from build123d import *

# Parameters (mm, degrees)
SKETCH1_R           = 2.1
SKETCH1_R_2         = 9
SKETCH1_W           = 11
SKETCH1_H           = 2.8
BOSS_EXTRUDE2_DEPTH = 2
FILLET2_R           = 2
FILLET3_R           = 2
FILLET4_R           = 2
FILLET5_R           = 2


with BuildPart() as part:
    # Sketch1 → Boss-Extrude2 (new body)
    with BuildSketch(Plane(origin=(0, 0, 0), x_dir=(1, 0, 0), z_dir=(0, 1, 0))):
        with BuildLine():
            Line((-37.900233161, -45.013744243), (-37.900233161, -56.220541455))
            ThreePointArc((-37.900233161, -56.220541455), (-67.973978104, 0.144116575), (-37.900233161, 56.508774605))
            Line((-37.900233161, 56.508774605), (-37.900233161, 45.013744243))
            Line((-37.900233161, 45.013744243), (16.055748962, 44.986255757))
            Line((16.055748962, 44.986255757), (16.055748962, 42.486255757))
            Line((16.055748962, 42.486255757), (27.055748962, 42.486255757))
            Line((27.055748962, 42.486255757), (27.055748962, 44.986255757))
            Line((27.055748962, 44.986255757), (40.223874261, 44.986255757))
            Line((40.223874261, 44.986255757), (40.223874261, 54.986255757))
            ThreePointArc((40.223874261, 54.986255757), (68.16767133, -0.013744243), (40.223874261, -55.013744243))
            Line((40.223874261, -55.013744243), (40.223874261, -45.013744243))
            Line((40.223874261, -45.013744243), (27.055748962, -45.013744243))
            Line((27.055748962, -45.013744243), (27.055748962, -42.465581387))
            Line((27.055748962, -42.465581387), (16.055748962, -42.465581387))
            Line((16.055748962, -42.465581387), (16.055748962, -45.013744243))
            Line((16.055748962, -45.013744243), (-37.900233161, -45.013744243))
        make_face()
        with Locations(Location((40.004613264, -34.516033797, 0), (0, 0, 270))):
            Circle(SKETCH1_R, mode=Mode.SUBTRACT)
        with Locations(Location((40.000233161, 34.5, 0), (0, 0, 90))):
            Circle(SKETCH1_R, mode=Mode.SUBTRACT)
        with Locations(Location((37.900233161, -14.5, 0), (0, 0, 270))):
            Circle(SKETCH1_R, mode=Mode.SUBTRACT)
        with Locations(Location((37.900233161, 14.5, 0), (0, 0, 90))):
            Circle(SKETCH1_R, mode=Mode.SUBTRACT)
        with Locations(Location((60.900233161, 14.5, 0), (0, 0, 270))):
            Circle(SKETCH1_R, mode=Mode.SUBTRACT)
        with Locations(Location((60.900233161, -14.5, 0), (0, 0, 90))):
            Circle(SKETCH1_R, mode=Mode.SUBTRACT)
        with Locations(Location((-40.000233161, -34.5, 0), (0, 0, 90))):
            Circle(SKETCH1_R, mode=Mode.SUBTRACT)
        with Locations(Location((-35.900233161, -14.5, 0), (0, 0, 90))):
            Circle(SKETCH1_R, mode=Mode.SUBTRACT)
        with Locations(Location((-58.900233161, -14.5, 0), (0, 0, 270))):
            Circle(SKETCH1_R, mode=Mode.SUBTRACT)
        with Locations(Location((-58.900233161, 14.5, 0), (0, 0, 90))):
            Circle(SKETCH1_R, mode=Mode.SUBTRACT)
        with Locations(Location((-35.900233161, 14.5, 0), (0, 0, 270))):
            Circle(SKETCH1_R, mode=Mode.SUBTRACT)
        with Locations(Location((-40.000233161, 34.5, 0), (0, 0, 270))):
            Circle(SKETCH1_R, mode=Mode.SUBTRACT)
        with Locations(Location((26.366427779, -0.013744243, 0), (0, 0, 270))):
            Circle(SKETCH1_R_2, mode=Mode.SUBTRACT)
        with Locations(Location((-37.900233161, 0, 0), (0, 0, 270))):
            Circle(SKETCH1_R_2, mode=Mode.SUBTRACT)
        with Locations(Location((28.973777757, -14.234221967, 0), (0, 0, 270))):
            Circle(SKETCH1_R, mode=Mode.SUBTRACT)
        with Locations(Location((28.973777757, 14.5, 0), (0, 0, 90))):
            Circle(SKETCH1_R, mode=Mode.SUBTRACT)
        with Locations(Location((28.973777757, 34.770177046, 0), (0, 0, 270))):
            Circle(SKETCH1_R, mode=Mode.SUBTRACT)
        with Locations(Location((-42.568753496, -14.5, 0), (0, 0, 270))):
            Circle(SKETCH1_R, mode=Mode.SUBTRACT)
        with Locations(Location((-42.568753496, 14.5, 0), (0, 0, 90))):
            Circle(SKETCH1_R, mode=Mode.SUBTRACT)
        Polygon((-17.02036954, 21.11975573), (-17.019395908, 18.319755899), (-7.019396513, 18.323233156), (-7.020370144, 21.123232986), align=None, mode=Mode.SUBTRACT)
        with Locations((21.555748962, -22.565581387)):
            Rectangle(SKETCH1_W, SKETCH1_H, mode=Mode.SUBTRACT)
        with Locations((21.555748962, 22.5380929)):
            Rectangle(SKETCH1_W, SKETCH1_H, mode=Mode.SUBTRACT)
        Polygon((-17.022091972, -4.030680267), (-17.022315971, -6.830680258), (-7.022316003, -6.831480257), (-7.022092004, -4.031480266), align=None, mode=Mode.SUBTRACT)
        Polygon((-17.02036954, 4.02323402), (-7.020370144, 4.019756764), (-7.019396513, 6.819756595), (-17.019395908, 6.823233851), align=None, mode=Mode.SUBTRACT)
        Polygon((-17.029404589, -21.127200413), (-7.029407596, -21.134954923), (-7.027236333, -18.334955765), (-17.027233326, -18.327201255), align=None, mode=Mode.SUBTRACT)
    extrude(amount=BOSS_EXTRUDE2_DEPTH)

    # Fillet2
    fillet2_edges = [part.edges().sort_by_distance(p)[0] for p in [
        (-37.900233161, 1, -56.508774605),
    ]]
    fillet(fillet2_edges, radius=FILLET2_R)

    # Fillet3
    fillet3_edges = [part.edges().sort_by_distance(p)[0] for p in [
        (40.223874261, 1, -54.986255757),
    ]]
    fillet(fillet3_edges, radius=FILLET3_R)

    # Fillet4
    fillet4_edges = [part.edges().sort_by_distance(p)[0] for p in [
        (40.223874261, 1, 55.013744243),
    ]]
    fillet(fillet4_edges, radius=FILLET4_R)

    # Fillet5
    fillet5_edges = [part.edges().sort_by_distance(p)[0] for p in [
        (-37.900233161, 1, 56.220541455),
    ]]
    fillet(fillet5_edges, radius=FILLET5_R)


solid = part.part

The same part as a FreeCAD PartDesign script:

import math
import FreeCAD as App
import Part
import Sketcher
from FreeCAD import Vector


def edges_at(feature, points):
    """Names of the edges that pass closest to the given points."""
    edges = feature.Shape.Edges
    near = lambda p: min(range(len(edges)), key=lambda i: edges[i].distToShape(Part.Vertex(*p))[0])
    return sorted({f"Edge{near(p) + 1}" for p in points})

doc = App.newDocument("Part")
body = doc.addObject("PartDesign::Body", "Body")

# Sketch on XZ plane
sketch1 = body.newObject("Sketcher::SketchObject", "Sketch")
sketch1.AttachmentSupport = (doc.getObject("XZ_Plane"), [""])
sketch1.MapMode = "FlatFace"
sketch1.addGeometry(Part.LineSegment(Vector(-37.9, 56.2, 0), Vector(-37.9, 45, 0)), False)
sketch1.addGeometry(Part.LineSegment(Vector(-37.9, 45, 0), Vector(16.1, 45, 0)), False)
sketch1.addGeometry(Part.LineSegment(Vector(16.1, 45, 0), Vector(16.1, 42.5, 0)), False)
sketch1.addGeometry(Part.LineSegment(Vector(16.1, 42.5, 0), Vector(27.1, 42.5, 0)), False)
sketch1.addGeometry(Part.LineSegment(Vector(27.1, 42.5, 0), Vector(27.1, 45, 0)), False)
sketch1.addGeometry(Part.LineSegment(Vector(27.1, 45, 0), Vector(40.2, 45, 0)), False)
sketch1.addGeometry(Part.LineSegment(Vector(40.2, 45, 0), Vector(40.2, 55, 0)), False)
sketch1.addGeometry(Part.ArcOfCircle(Part.Circle(Vector(0.1, 0, 0), Vector(0, 0, 1), 68.1), math.radians(-54), math.radians(54)), False)
sketch1.addGeometry(Part.LineSegment(Vector(40.2, -55, 0), Vector(40.2, -45, 0)), False)
sketch1.addGeometry(Part.LineSegment(Vector(40.2, -45, 0), Vector(27.1, -45, 0)), False)
sketch1.addGeometry(Part.LineSegment(Vector(27.1, -45, 0), Vector(27.1, -42.5, 0)), False)
sketch1.addGeometry(Part.LineSegment(Vector(27.1, -42.5, 0), Vector(16.1, -42.5, 0)), False)
sketch1.addGeometry(Part.LineSegment(Vector(16.1, -42.5, 0), Vector(16.1, -45, 0)), False)
sketch1.addGeometry(Part.LineSegment(Vector(16.1, -45, 0), Vector(-37.9, -45, 0)), False)
sketch1.addGeometry(Part.LineSegment(Vector(-37.9, -45, 0), Vector(-37.9, -56.5, 0)), False)
sketch1.addGeometry(Part.ArcOfCircle(Part.Circle(Vector(-0.1, -0.1, 0), Vector(0, 0, 1), 67.9), math.radians(124), math.radians(236)), False)
sketch1.addGeometry(Part.Circle(Vector(40, 34.5, 0), Vector(0, 0, 1), 2.1), False)
sketch1.addGeometry(Part.LineSegment(Vector(16.1, 24, 0), Vector(16.1, 21.2, 0)), False)
sketch1.addGeometry(Part.LineSegment(Vector(16.1, 21.2, 0), Vector(27.1, 21.2, 0)), False)
sketch1.addGeometry(Part.LineSegment(Vector(27.1, 21.2, 0), Vector(27.1, 24, 0)), False)
sketch1.addGeometry(Part.LineSegment(Vector(27.1, 24, 0), Vector(16.1, 24, 0)), False)
sketch1.addGeometry(Part.Circle(Vector(60.9, 14.5, 0), Vector(0, 0, 1), 2.1), False)
sketch1.addGeometry(Part.Circle(Vector(37.9, 14.5, 0), Vector(0, 0, 1), 2.1), False)
sketch1.addGeometry(Part.Circle(Vector(29, 14.2, 0), Vector(0, 0, 1), 2.1), False)
sketch1.addGeometry(Part.Circle(Vector(26.4, 0, 0), Vector(0, 0, 1), 9), False)
sketch1.addGeometry(Part.LineSegment(Vector(-17, 21.1, 0), Vector(-17, 18.3, 0)), False)
sketch1.addGeometry(Part.LineSegment(Vector(-17, 18.3, 0), Vector(-7, 18.3, 0)), False)
sketch1.addGeometry(Part.LineSegment(Vector(-7, 18.3, 0), Vector(-7, 21.1, 0)), False)
sketch1.addGeometry(Part.LineSegment(Vector(-7, 21.1, 0), Vector(-17, 21.1, 0)), False)
sketch1.addGeometry(Part.Circle(Vector(-40, 34.5, 0), Vector(0, 0, 1), 2.1), False)
sketch1.addGeometry(Part.LineSegment(Vector(-17, 4, 0), Vector(-7, 4, 0)), False)
sketch1.addGeometry(Part.LineSegment(Vector(-7, 4, 0), Vector(-7, 6.8, 0)), False)
sketch1.addGeometry(Part.LineSegment(Vector(-7, 6.8, 0), Vector(-17, 6.8, 0)), False)
sketch1.addGeometry(Part.LineSegment(Vector(-17, 6.8, 0), Vector(-17, 4, 0)), False)
sketch1.addGeometry(Part.Circle(Vector(-35.9, 14.5, 0), Vector(0, 0, 1), 2.1), False)
sketch1.addGeometry(Part.Circle(Vector(-42.6, 14.5, 0), Vector(0, 0, 1), 2.1), False)
sketch1.addGeometry(Part.Circle(Vector(-58.9, 14.5, 0), Vector(0, 0, 1), 2.1), False)
sketch1.addGeometry(Part.Circle(Vector(-37.9, 0, 0), Vector(0, 0, 1), 9), False)
sketch1.addGeometry(Part.Circle(Vector(60.9, -14.5, 0), Vector(0, 0, 1), 2.1), False)
sketch1.addGeometry(Part.Circle(Vector(37.9, -14.5, 0), Vector(0, 0, 1), 2.1), False)
sketch1.addGeometry(Part.Circle(Vector(29, -14.5, 0), Vector(0, 0, 1), 2.1), False)
sketch1.addGeometry(Part.Circle(Vector(40, -34.5, 0), Vector(0, 0, 1), 2.1), False)
sketch1.addGeometry(Part.LineSegment(Vector(16.1, -21.1, 0), Vector(16.1, -23.9, 0)), False)
sketch1.addGeometry(Part.LineSegment(Vector(16.1, -23.9, 0), Vector(27.1, -23.9, 0)), False)
sketch1.addGeometry(Part.LineSegment(Vector(27.1, -23.9, 0), Vector(27.1, -21.1, 0)), False)
sketch1.addGeometry(Part.LineSegment(Vector(27.1, -21.1, 0), Vector(16.1, -21.1, 0)), False)
sketch1.addGeometry(Part.Circle(Vector(29, -34.8, 0), Vector(0, 0, 1), 2.1), False)
sketch1.addGeometry(Part.LineSegment(Vector(-17, -4, 0), Vector(-17, -6.8, 0)), False)
sketch1.addGeometry(Part.LineSegment(Vector(-17, -6.8, 0), Vector(-7, -6.8, 0)), False)
sketch1.addGeometry(Part.LineSegment(Vector(-7, -6.8, 0), Vector(-7, -4, 0)), False)
sketch1.addGeometry(Part.LineSegment(Vector(-7, -4, 0), Vector(-17, -4, 0)), False)
sketch1.addGeometry(Part.Circle(Vector(-35.9, -14.5, 0), Vector(0, 0, 1), 2.1), False)
sketch1.addGeometry(Part.Circle(Vector(-42.6, -14.5, 0), Vector(0, 0, 1), 2.1), False)
sketch1.addGeometry(Part.Circle(Vector(-58.9, -14.5, 0), Vector(0, 0, 1), 2.1), False)
sketch1.addGeometry(Part.LineSegment(Vector(-17, -21.1, 0), Vector(-7, -21.1, 0)), False)
sketch1.addGeometry(Part.LineSegment(Vector(-7, -21.1, 0), Vector(-7, -18.3, 0)), False)
sketch1.addGeometry(Part.LineSegment(Vector(-7, -18.3, 0), Vector(-17, -18.3, 0)), False)
sketch1.addGeometry(Part.LineSegment(Vector(-17, -18.3, 0), Vector(-17, -21.1, 0)), False)
sketch1.addGeometry(Part.Circle(Vector(-40, -34.5, 0), Vector(0, 0, 1), 2.1), False)
sketch1.addConstraint(Sketcher.Constraint("Coincident", 0, 2, 1, 1))
sketch1.addConstraint(Sketcher.Constraint("Coincident", 1, 2, 2, 1))
sketch1.addConstraint(Sketcher.Constraint("Coincident", 2, 2, 3, 1))
sketch1.addConstraint(Sketcher.Constraint("Coincident", 3, 2, 4, 1))
sketch1.addConstraint(Sketcher.Constraint("Coincident", 4, 2, 5, 1))
sketch1.addConstraint(Sketcher.Constraint("Coincident", 5, 2, 6, 1))
sketch1.addConstraint(Sketcher.Constraint("Coincident", 6, 2, 7, 2))
sketch1.addConstraint(Sketcher.Constraint("Coincident", 7, 1, 8, 1))
sketch1.addConstraint(Sketcher.Constraint("Coincident", 8, 2, 9, 1))
sketch1.addConstraint(Sketcher.Constraint("Coincident", 9, 2, 10, 1))
sketch1.addConstraint(Sketcher.Constraint("Coincident", 10, 2, 11, 1))
sketch1.addConstraint(Sketcher.Constraint("Coincident", 11, 2, 12, 1))
sketch1.addConstraint(Sketcher.Constraint("Coincident", 12, 2, 13, 1))
sketch1.addConstraint(Sketcher.Constraint("Coincident", 13, 2, 14, 1))
sketch1.addConstraint(Sketcher.Constraint("Coincident", 14, 2, 15, 2))
sketch1.addConstraint(Sketcher.Constraint("Coincident", 15, 1, 0, 1))
sketch1.addConstraint(Sketcher.Constraint("Coincident", 17, 2, 18, 1))
sketch1.addConstraint(Sketcher.Constraint("Coincident", 18, 2, 19, 1))
sketch1.addConstraint(Sketcher.Constraint("Coincident", 19, 2, 20, 1))
sketch1.addConstraint(Sketcher.Constraint("Coincident", 20, 2, 17, 1))
sketch1.addConstraint(Sketcher.Constraint("Coincident", 25, 2, 26, 1))
sketch1.addConstraint(Sketcher.Constraint("Coincident", 26, 2, 27, 1))
sketch1.addConstraint(Sketcher.Constraint("Coincident", 27, 2, 28, 1))
sketch1.addConstraint(Sketcher.Constraint("Coincident", 28, 2, 25, 1))
sketch1.addConstraint(Sketcher.Constraint("Coincident", 30, 2, 31, 1))
sketch1.addConstraint(Sketcher.Constraint("Coincident", 31, 2, 32, 1))
sketch1.addConstraint(Sketcher.Constraint("Coincident", 32, 2, 33, 1))
sketch1.addConstraint(Sketcher.Constraint("Coincident", 33, 2, 30, 1))
sketch1.addConstraint(Sketcher.Constraint("Coincident", 42, 2, 43, 1))
sketch1.addConstraint(Sketcher.Constraint("Coincident", 43, 2, 44, 1))
sketch1.addConstraint(Sketcher.Constraint("Coincident", 44, 2, 45, 1))
sketch1.addConstraint(Sketcher.Constraint("Coincident", 45, 2, 42, 1))
sketch1.addConstraint(Sketcher.Constraint("Coincident", 47, 2, 48, 1))
sketch1.addConstraint(Sketcher.Constraint("Coincident", 48, 2, 49, 1))
sketch1.addConstraint(Sketcher.Constraint("Coincident", 49, 2, 50, 1))
sketch1.addConstraint(Sketcher.Constraint("Coincident", 50, 2, 47, 1))
sketch1.addConstraint(Sketcher.Constraint("Coincident", 54, 2, 55, 1))
sketch1.addConstraint(Sketcher.Constraint("Coincident", 55, 2, 56, 1))
sketch1.addConstraint(Sketcher.Constraint("Coincident", 56, 2, 57, 1))
sketch1.addConstraint(Sketcher.Constraint("Coincident", 57, 2, 54, 1))
sketch1.addConstraint(Sketcher.Constraint("Vertical", 0))
sketch1.addConstraint(Sketcher.Constraint("Horizontal", 1))
sketch1.addConstraint(Sketcher.Constraint("Vertical", 2))
sketch1.addConstraint(Sketcher.Constraint("Horizontal", 3))
sketch1.addConstraint(Sketcher.Constraint("Vertical", 4))
sketch1.addConstraint(Sketcher.Constraint("Horizontal", 5))
sketch1.addConstraint(Sketcher.Constraint("Vertical", 6))
sketch1.addConstraint(Sketcher.Constraint("Vertical", 8))
sketch1.addConstraint(Sketcher.Constraint("Horizontal", 9))
sketch1.addConstraint(Sketcher.Constraint("Vertical", 10))
sketch1.addConstraint(Sketcher.Constraint("Horizontal", 11))
sketch1.addConstraint(Sketcher.Constraint("Vertical", 12))
sketch1.addConstraint(Sketcher.Constraint("Vertical", 14))
sketch1.addConstraint(Sketcher.Constraint("Vertical", 17))
sketch1.addConstraint(Sketcher.Constraint("Horizontal", 18))
sketch1.addConstraint(Sketcher.Constraint("Vertical", 19))
sketch1.addConstraint(Sketcher.Constraint("Horizontal", 20))
sketch1.addConstraint(Sketcher.Constraint("Vertical", 42))
sketch1.addConstraint(Sketcher.Constraint("Horizontal", 43))
sketch1.addConstraint(Sketcher.Constraint("Vertical", 44))
sketch1.addConstraint(Sketcher.Constraint("Horizontal", 45))
sketch1.addConstraint(Sketcher.Constraint("Equal", 16, 21))
sketch1.addConstraint(Sketcher.Constraint("Equal", 21, 22))
sketch1.addConstraint(Sketcher.Constraint("Equal", 22, 23))
sketch1.addConstraint(Sketcher.Constraint("Equal", 23, 29))
sketch1.addConstraint(Sketcher.Constraint("Equal", 29, 34))
sketch1.addConstraint(Sketcher.Constraint("Equal", 34, 35))
sketch1.addConstraint(Sketcher.Constraint("Equal", 35, 36))
sketch1.addConstraint(Sketcher.Constraint("Equal", 24, 37))
sketch1.addConstraint(Sketcher.Constraint("Equal", 36, 38))
sketch1.addConstraint(Sketcher.Constraint("Equal", 38, 39))
sketch1.addConstraint(Sketcher.Constraint("Equal", 39, 40))
sketch1.addConstraint(Sketcher.Constraint("Equal", 40, 41))
sketch1.addConstraint(Sketcher.Constraint("Equal", 41, 46))
sketch1.addConstraint(Sketcher.Constraint("Equal", 46, 51))
sketch1.addConstraint(Sketcher.Constraint("Equal", 51, 52))
sketch1.addConstraint(Sketcher.Constraint("Equal", 52, 53))
sketch1.addConstraint(Sketcher.Constraint("Equal", 53, 58))
sketch1.addConstraint(Sketcher.Constraint("Symmetric", 29, 3, 41, 3, -1, 1))
sketch1.addConstraint(Sketcher.Constraint("Symmetric", 41, 3, 58, 3, -2))
sketch1.addConstraint(Sketcher.Constraint("Symmetric", 21, 3, 38, 3, -1))
sketch1.addConstraint(Sketcher.Constraint("Symmetric", 22, 3, 39, 3, -1))
sketch1.addConstraint(Sketcher.Constraint("Symmetric", 34, 3, 51, 3, -1))
sketch1.addConstraint(Sketcher.Constraint("Symmetric", 35, 3, 52, 3, -1))
sketch1.addConstraint(Sketcher.Constraint("Symmetric", 36, 3, 53, 3, -1))
sketch1.addConstraint(Sketcher.Constraint("Symmetric", 0, 2, 13, 2, -1))
sketch1.addConstraint(Sketcher.Constraint("PointOnObject", 37, 3, -1))
sketch1.addConstraint(Sketcher.Constraint("Perpendicular", 25, 26))
sketch1.addConstraint(Sketcher.Constraint("Perpendicular", 26, 27))
sketch1.addConstraint(Sketcher.Constraint("Perpendicular", 27, 28))
sketch1.addConstraint(Sketcher.Constraint("Perpendicular", 30, 31))
sketch1.addConstraint(Sketcher.Constraint("Perpendicular", 31, 32))
sketch1.addConstraint(Sketcher.Constraint("Perpendicular", 32, 33))
sketch1.addConstraint(Sketcher.Constraint("Perpendicular", 47, 48))
sketch1.addConstraint(Sketcher.Constraint("Perpendicular", 48, 49))
sketch1.addConstraint(Sketcher.Constraint("Perpendicular", 49, 50))
sketch1.addConstraint(Sketcher.Constraint("Perpendicular", 54, 55))
sketch1.addConstraint(Sketcher.Constraint("Perpendicular", 55, 56))
sketch1.addConstraint(Sketcher.Constraint("Perpendicular", 56, 57))
sketch1.addConstraint(Sketcher.Constraint("Horizontal", 21, 3, 22, 3))
sketch1.addConstraint(Sketcher.Constraint("Horizontal", 7, 3, 24, 3))
sketch1.addConstraint(Sketcher.Constraint("Horizontal", 22, 3, 34, 3))
sketch1.addConstraint(Sketcher.Constraint("Horizontal", 34, 3, 35, 3))
sketch1.addConstraint(Sketcher.Constraint("Horizontal", 35, 3, 36, 3))
sketch1.addConstraint(Sketcher.Constraint("Horizontal", 39, 3, 40, 3))
sketch1.addConstraint(Sketcher.Constraint("Horizontal", 1, 2, 4, 2))
sketch1.addConstraint(Sketcher.Constraint("Horizontal", 9, 2, 12, 2))
sketch1.addConstraint(Sketcher.Constraint("Vertical", 23, 3, 40, 3))
sketch1.addConstraint(Sketcher.Constraint("Vertical", 40, 3, 46, 3))
sketch1.addConstraint(Sketcher.Constraint("Vertical", 37, 3, 0, 2))
sketch1.addConstraint(Sketcher.Constraint("Vertical", 6, 2, 7, 1))
sketch1.addConstraint(Sketcher.Constraint("Vertical", 4, 2, 9, 2))
sketch1.addConstraint(Sketcher.Constraint("Vertical", 2, 2, 11, 2))
sketch1.addConstraint(Sketcher.Constraint("Vertical", 12, 2, 17, 2))
sketch1.addConstraint(Sketcher.Constraint("Vertical", 10, 2, 18, 2))
sketch1.addConstraint(Sketcher.Constraint("Vertical", 20, 2, 42, 2))
sketch1.addConstraint(Sketcher.Constraint("Vertical", 19, 2, 43, 2))
sketch1.addConstraint(Sketcher.Constraint("Vertical", 49, 2, 54, 2))
sketch1.addConstraint(Sketcher.Constraint("Vertical", 48, 2, 55, 2))
sketch1.addConstraint(Sketcher.Constraint("Vertical", 47, 2, 56, 2))
sketch1.addConstraint(Sketcher.Constraint("Equal", 6, 8))
sketch1.addConstraint(Sketcher.Constraint("Equal", 19, 42))
sketch1.addConstraint(Sketcher.Constraint("Equal", 28, 30))
sketch1.addConstraint(Sketcher.Constraint("Equal", 27, 31))
sketch1.addConstraint(Sketcher.Constraint("Equal", 33, 47))
sketch1.addConstraint(Sketcher.Constraint("Equal", 32, 48))
sketch1.addConstraint(Sketcher.Constraint("Equal", 49, 55))
sketch1.addConstraint(Sketcher.Constraint("Diameter", 24, 18.0))
sketch1.addConstraint(Sketcher.Constraint("Diameter", 16, 4.2))
sketch1.addConstraint(Sketcher.Constraint("DistanceX", 3, 1, 3, 2, 11.0))
sketch1.addConstraint(Sketcher.Constraint("DistanceY", 6, 1, 6, 2, 10.0))
sketch1.addConstraint(Sketcher.Constraint("Distance", 26, 10.0))
sketch1.addConstraint(Sketcher.Constraint("DistanceY", 10, 1, 10, 2, 2.5))
sketch1.addConstraint(Sketcher.Constraint("DistanceY", 17, 2, 17, 1, 2.8))
sketch1.addConstraint(Sketcher.Constraint("Distance", 25, 2.8))
sketch1.addConstraint(Sketcher.Constraint("DistanceY", -1, 1, 21, 3, 14.5))
sketch1.addConstraint(Sketcher.Constraint("DistanceY", -1, 1, 29, 3, 34.5))
sketch1.addConstraint(Sketcher.Constraint("Radius", 7, 68.098401))
sketch1.addConstraint(Sketcher.Constraint("Radius", 15, 67.856611))
sketch1.addConstraint(Sketcher.Constraint("DistanceY", 14, 2, 14, 1, 11.49503))
sketch1.addConstraint(Sketcher.Constraint("DistanceY", -1, 1, 25, 2, 18.327201))
sketch1.addConstraint(Sketcher.Constraint("Distance", 13, 53.955989))
sketch1.addConstraint(Sketcher.Constraint("DistanceX", 5, 1, 5, 2, 13.168125))
sketch1.addConstraint(Sketcher.Constraint("DistanceY", 0, 2, 0, 1, 11.206797))
sketch1.addConstraint(Sketcher.Constraint("DistanceY", 2, 2, 2, 1, 2.548163))
sketch1.addConstraint(Sketcher.Constraint("DistanceX", -1, 1, 7, 3, 0.06927))
sketch1.addConstraint(Sketcher.Constraint("DistanceY", -1, 1, 23, 3, 14.234222))
sketch1.addConstraint(Sketcher.Constraint("DistanceX", -1, 1, 1, 2, 16.055749))
sketch1.addConstraint(Sketcher.Constraint("DistanceY", -1, 1, 2, 2, 42.465581))
sketch1.addConstraint(Sketcher.Constraint("DistanceY", -1, 1, 17, 2, 21.165581))
sketch1.addConstraint(Sketcher.Constraint("DistanceY", -1, 1, 30, 2, 4.03148))
sketch1.addConstraint(Sketcher.Constraint("DistanceY", -1, 1, 32, 2, 6.83068))
sketch1.addConstraint(Sketcher.Constraint("DistanceX", 33, 2, -1, 1, 17.022092))
sketch1.addConstraint(Sketcher.Constraint("DistanceX", 49, 2, -1, 1, 7.02037))
sketch1.addConstraint(Sketcher.Constraint("DistanceX", -1, 1, 16, 3, 40.004613))
sketch1.addConstraint(Sketcher.Constraint("DistanceY", -1, 1, 16, 3, 34.516034))
sketch1.addConstraint(Sketcher.Constraint("DistanceX", -1, 1, 21, 3, 60.900233))
sketch1.addConstraint(Sketcher.Constraint("DistanceX", -1, 1, 22, 3, 37.900233))
sketch1.addConstraint(Sketcher.Constraint("DistanceX", -1, 1, 23, 3, 28.973778))
sketch1.addConstraint(Sketcher.Constraint("DistanceX", -1, 1, 24, 3, 26.366428))
sketch1.addConstraint(Sketcher.Constraint("DistanceX", 29, 3, -1, 1, 40.000233))
sketch1.addConstraint(Sketcher.Constraint("DistanceX", 34, 3, -1, 1, 35.900233))
sketch1.addConstraint(Sketcher.Constraint("DistanceX", 35, 3, -1, 1, 42.568753))
sketch1.addConstraint(Sketcher.Constraint("DistanceX", 36, 3, -1, 1, 58.900233))
sketch1.addConstraint(Sketcher.Constraint("DistanceY", 46, 3, -1, 1, 34.770177))
sketch1.addConstraint(Sketcher.Constraint("DistanceX", 25, 2, -1, 1, 17.027233))
sketch1.addConstraint(Sketcher.Constraint("DistanceY", -1, 1, 26, 2, 18.334956))
sketch1.addConstraint(Sketcher.Constraint("DistanceY", 42, 2, -1, 1, 23.938093))
sketch1.addConstraint(Sketcher.Constraint("DistanceX", 47, 2, -1, 1, 17.019396))
sketch1.addConstraint(Sketcher.Constraint("DistanceY", 47, 2, -1, 1, 6.823234))
sketch1.addConstraint(Sketcher.Constraint("DistanceY", 54, 2, -1, 1, 21.123233))
pad1 = body.newObject("PartDesign::Pad", "Pad")
pad1.Profile = sketch1
pad1.Length = 2
pad1.Reversed = True
doc.recompute()

fillet = body.newObject("PartDesign::Fillet", "Fillet")
fillet.Base = (pad1, edges_at(pad1, [(-37.9, 1, -56.509)]))
fillet.Radius = 2
doc.recompute()

fillet2 = body.newObject("PartDesign::Fillet", "Fillet001")
fillet2.Base = (fillet, edges_at(fillet, [(40.224, 1, -54.986)]))
fillet2.Radius = 2
doc.recompute()

fillet3 = body.newObject("PartDesign::Fillet", "Fillet002")
fillet3.Base = (fillet2, edges_at(fillet2, [(40.224, 1, 55.014)]))
fillet3.Radius = 2
doc.recompute()

fillet4 = body.newObject("PartDesign::Fillet", "Fillet003")
fillet4.Base = (fillet3, edges_at(fillet3, [(-37.9, 1, 56.221)]))
fillet4.Radius = 2

doc.recompute()
